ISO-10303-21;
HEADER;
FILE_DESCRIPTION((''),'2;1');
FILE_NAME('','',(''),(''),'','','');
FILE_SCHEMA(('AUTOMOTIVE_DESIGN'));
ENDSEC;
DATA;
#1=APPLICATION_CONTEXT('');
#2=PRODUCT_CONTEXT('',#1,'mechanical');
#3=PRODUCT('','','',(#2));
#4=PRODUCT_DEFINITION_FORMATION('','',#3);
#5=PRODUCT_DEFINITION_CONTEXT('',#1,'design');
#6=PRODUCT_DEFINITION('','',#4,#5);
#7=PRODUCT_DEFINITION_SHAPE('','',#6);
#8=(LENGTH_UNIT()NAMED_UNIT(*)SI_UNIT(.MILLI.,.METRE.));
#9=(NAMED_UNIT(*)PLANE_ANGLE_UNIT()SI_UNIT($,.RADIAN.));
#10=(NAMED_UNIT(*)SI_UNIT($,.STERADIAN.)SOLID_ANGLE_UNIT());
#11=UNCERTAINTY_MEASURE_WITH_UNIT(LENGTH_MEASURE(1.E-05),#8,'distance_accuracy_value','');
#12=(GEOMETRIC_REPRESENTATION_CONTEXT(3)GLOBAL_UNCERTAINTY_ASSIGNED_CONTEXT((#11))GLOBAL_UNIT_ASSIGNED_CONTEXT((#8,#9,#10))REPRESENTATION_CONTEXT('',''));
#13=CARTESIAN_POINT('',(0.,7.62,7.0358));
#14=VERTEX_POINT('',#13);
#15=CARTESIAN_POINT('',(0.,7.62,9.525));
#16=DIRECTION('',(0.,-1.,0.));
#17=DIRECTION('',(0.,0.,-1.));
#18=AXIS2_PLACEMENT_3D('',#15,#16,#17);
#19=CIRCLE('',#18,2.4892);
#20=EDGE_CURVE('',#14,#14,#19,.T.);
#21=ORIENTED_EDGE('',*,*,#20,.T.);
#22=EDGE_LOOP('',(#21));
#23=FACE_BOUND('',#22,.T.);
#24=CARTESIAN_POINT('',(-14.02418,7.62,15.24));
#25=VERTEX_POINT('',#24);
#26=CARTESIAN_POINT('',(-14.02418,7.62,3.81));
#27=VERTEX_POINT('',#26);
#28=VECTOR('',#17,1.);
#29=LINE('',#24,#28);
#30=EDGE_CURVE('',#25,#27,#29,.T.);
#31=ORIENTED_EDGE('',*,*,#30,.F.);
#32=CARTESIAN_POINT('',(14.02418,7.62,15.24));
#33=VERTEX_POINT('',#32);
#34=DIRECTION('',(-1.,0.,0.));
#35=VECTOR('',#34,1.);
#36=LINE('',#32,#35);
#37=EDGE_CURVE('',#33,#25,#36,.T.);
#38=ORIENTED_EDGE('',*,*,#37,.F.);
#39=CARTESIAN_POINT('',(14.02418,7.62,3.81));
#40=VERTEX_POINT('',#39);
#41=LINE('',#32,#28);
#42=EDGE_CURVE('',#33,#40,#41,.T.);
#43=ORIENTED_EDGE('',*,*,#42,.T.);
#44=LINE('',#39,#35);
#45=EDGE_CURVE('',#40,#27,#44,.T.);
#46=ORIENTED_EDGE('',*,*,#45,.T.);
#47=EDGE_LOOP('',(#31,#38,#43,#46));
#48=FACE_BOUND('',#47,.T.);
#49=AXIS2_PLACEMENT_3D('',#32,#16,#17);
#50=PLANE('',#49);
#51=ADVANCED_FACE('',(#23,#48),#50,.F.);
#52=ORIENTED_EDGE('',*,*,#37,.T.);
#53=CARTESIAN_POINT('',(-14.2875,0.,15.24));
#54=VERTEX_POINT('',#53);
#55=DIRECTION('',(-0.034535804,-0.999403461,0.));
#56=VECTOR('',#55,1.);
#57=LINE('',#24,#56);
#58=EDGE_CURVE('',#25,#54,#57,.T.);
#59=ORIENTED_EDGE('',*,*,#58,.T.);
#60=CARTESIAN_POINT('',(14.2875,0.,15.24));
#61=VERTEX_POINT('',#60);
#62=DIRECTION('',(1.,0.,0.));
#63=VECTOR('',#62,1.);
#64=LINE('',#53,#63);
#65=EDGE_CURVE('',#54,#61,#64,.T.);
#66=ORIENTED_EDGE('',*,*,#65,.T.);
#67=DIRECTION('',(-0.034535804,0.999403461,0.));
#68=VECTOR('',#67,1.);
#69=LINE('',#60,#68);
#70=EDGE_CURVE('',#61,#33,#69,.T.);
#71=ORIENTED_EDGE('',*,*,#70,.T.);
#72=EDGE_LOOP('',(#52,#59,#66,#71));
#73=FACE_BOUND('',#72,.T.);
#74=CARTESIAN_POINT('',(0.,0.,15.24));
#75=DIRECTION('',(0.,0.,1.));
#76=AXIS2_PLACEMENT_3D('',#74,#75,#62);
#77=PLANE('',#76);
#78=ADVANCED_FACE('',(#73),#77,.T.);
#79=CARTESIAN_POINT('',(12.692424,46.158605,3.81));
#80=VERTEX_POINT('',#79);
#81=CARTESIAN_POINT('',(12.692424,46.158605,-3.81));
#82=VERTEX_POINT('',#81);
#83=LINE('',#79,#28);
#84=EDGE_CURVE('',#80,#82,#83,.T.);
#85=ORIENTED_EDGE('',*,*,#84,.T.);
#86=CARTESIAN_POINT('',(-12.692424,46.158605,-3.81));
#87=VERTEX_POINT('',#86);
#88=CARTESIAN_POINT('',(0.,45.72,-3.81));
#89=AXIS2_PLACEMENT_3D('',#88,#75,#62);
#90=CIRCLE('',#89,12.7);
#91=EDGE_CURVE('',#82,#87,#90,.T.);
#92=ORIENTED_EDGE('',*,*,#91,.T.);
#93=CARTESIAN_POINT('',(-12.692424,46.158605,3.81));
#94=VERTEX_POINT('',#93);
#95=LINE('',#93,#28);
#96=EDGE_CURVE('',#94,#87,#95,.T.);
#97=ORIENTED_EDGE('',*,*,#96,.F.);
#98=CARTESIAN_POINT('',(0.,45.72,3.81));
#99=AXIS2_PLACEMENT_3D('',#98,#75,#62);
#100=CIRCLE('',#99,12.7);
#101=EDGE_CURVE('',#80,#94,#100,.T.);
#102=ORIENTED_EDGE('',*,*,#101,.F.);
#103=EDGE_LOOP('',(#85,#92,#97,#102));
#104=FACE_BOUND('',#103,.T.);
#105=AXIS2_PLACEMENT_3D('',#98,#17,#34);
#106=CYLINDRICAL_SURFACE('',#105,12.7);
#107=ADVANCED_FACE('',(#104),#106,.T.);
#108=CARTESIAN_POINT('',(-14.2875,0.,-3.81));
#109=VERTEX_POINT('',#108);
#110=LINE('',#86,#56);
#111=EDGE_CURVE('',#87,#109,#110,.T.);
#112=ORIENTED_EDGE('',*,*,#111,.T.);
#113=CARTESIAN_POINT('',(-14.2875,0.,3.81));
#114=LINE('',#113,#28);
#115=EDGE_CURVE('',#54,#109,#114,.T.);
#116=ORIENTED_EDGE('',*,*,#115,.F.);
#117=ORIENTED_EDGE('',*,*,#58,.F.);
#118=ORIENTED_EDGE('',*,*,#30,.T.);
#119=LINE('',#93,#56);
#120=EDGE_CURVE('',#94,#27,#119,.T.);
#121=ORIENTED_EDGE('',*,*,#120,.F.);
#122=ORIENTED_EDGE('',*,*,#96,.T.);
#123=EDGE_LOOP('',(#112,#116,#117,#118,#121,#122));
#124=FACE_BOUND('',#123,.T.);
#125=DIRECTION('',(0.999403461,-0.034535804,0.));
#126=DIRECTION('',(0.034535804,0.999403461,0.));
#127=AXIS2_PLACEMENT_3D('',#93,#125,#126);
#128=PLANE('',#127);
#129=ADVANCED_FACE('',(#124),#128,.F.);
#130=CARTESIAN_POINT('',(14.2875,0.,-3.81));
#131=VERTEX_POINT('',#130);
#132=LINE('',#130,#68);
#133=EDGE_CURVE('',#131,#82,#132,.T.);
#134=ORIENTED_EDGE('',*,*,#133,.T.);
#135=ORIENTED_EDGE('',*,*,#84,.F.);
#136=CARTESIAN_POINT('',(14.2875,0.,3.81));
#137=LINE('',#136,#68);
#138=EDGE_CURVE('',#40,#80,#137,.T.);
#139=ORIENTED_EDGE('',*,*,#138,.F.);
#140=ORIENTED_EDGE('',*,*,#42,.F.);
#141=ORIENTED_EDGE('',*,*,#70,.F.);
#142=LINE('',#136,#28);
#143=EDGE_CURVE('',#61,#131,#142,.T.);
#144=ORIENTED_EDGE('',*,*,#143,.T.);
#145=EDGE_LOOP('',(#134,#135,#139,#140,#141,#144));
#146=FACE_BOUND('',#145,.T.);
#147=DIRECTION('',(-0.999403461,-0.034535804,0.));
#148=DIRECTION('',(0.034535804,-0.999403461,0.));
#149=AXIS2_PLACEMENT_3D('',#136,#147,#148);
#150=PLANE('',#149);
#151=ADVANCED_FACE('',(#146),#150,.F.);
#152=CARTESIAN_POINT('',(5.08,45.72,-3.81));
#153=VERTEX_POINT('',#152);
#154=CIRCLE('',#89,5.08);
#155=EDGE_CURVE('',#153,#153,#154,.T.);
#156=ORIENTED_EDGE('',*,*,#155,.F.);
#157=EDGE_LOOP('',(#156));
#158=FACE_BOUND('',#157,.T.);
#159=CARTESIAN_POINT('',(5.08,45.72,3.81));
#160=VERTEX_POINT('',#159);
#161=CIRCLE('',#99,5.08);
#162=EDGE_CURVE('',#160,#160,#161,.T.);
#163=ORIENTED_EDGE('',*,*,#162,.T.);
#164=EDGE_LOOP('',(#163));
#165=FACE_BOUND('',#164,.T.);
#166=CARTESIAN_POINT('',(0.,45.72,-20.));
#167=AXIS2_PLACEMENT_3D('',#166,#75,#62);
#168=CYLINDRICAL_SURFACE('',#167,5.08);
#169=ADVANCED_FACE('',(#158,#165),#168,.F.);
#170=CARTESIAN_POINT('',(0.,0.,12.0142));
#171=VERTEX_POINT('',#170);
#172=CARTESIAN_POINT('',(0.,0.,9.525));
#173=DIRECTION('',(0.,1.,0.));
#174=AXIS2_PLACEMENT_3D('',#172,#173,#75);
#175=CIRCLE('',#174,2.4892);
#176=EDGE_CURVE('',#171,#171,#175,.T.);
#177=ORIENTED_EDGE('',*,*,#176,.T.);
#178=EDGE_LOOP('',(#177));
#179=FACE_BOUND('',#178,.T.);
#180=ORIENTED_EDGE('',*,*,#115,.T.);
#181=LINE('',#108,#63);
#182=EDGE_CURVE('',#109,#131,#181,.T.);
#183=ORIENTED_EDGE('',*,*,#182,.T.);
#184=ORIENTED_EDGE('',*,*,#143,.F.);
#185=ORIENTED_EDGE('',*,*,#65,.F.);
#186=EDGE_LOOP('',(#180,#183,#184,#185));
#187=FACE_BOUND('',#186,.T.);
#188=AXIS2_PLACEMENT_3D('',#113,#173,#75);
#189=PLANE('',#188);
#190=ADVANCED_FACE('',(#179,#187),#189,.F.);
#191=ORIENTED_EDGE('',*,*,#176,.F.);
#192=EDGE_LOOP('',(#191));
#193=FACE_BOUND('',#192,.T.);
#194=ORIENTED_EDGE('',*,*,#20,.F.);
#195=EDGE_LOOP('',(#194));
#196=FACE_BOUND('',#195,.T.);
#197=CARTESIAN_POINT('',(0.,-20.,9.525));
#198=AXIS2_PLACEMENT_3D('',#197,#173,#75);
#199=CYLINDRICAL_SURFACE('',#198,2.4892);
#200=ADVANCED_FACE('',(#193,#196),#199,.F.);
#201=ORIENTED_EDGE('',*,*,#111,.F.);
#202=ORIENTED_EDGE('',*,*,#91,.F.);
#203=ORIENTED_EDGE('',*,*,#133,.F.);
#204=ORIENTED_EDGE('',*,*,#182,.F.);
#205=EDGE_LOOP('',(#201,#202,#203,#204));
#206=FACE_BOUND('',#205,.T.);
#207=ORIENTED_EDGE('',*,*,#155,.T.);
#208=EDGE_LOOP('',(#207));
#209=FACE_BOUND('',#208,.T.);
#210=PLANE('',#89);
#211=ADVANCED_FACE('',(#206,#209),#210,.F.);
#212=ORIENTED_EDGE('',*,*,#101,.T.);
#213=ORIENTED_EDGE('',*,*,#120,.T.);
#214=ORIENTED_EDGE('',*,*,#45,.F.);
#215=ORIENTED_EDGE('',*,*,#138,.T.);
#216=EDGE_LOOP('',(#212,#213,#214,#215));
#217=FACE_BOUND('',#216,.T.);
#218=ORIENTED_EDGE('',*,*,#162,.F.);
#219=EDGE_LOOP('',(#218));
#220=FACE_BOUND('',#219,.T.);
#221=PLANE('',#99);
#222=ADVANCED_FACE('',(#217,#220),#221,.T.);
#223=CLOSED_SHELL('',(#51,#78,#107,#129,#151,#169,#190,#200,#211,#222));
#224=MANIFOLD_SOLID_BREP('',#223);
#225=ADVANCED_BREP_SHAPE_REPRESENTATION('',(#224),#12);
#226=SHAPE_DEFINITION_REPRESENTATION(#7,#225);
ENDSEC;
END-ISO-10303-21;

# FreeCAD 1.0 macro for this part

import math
import FreeCAD as App
import Part
import Sketcher
from FreeCAD import Vector
Q = App.Units.Quantity

doc = App.newDocument("Part")
body = doc.addObject("PartDesign::Body", "Body")

# Sketch on XY plane
sketch1 = body.newObject("Sketcher::SketchObject", "Sketch")
sketch1.AttachmentSupport = (doc.getObject("XY_Plane"), [""])
sketch1.MapMode = "FlatFace"
sketch1.addGeometry([
    Part.LineSegment(Vector(-14, 0, 0), Vector(14, 0, 0)),
    Part.LineSegment(Vector(14, 0, 0), Vector(13, 46, 0)),
    Part.ArcOfCircle(Part.Circle(Vector(0, 46, 0), Vector(0, 0, 1), 13), math.radians(2), math.radians(178)),
    Part.LineSegment(Vector(-13, 46, 0), Vector(-14, 0, 0)),
], False)
sketch1.addConstraint([
    Sketcher.Constraint("Coincident", 0, 2, 1, 1),
    Sketcher.Constraint("Tangent", 1, 2, 2, 1),
    Sketcher.Constraint("Tangent", 2, 2, 3, 1),
    Sketcher.Constraint("Coincident", 3, 2, 0, 1),
    Sketcher.Constraint("Horizontal", 0),
    Sketcher.Constraint("Symmetric", 0, 2, 3, 2, -1, 1),
    Sketcher.Constraint("PointOnObject", 2, 3, -2),
    Sketcher.Constraint("Radius", 2, Q("0.5 in")),
    Sketcher.Constraint("DistanceY", -1, 1, 2, 3, Q("1.8 in")),
    Sketcher.Constraint("DistanceX", 0, 1, 0, 2, Q("1.125 in")),
])
pad1 = body.newObject("PartDesign::Pad", "Pad")
pad1.Profile = sketch1
pad1.Length = Q("0.3 in")
pad1.Midplane = True

# Sketch on XY plane
sketch2 = body.newObject("Sketcher::SketchObject", "Sketch001")
sketch2.AttachmentSupport = (doc.getObject("XY_Plane"), [""])
sketch2.MapMode = "FlatFace"
sketch2.AttachmentOffset = App.Placement(Vector(0, 0, 0.15 * 25.4), App.Rotation())
sketch2.addGeometry([
    Part.LineSegment(Vector(-14.2875, 0, 0), Vector(14.2875, 0, 0)),
    Part.LineSegment(Vector(14.2875, 0, 0), Vector(14.02418, 7.62, 0)),
    Part.LineSegment(Vector(14.02418, 7.62, 0), Vector(-14.02418, 7.62, 0)),
    Part.LineSegment(Vector(-14.02418, 7.62, 0), Vector(-14.2875, 0, 0)),
], False)
sketch2.addConstraint([
    Sketcher.Constraint("Coincident", 0, 2, 1, 1),
    Sketcher.Constraint("Coincident", 1, 2, 2, 1),
    Sketcher.Constraint("Coincident", 2, 2, 3, 1),
    Sketcher.Constraint("Coincident", 3, 2, 0, 1),
    Sketcher.Constraint("Horizontal", 0),
    Sketcher.Constraint("Horizontal", 2),
    Sketcher.Constraint("Symmetric", 0, 2, 3, 2, -1, 1),
    Sketcher.Constraint("Equal", 1, 3),
    Sketcher.Constraint("DistanceY", -1, 1, 1, 2, Q("0.3 in")),
    Sketcher.Constraint("DistanceX", 0, 1, 0, 2, Q("1.125 in")),
    Sketcher.Constraint("DistanceX", 2, 2, 2, 1, Q("28.04836 mm")),
])
pad2 = body.newObject("PartDesign::Pad", "Pad001")
pad2.Profile = sketch2
pad2.Length = Q("0.45 in")

# Sketch on XY plane
sketch3 = body.newObject("Sketcher::SketchObject", "Sketch002")
sketch3.AttachmentSupport = (doc.getObject("XY_Plane"), [""])
sketch3.MapMode = "FlatFace"
sketch3.addGeometry(Part.Circle(Vector(0, 46, 0), Vector(0, 0, 1), 5), False)
sketch3.addConstraint([
    Sketcher.Constraint("PointOnObject", 0, 3, -2),
    Sketcher.Constraint("Diameter", 0, Q("0.4 in")),
    Sketcher.Constraint("DistanceY", -1, 1, 0, 3, Q("1.8 in")),
])
pocket1 = body.newObject("PartDesign::Pocket", "Pocket")
pocket1.Profile = sketch3
pocket1.Length = 40
pocket1.Midplane = True

# Sketch on XZ plane
sketch4 = body.newObject("Sketcher::SketchObject", "Sketch003")
sketch4.AttachmentSupport = (doc.getObject("XZ_Plane"), [""])
sketch4.MapMode = "FlatFace"
sketch4.addGeometry(Part.Circle(Vector(0, 9.5, 0), Vector(0, 0, 1), 2.5), False)
sketch4.addConstraint([
    Sketcher.Constraint("PointOnObject", 0, 3, -2),
    Sketcher.Constraint("Diameter", 0, Q("0.196 in")),
    Sketcher.Constraint("DistanceY", -1, 1, 0, 3, Q("0.375 in")),
])
pocket2 = body.newObject("PartDesign::Pocket", "Pocket001")
pocket2.Profile = sketch4
pocket2.Length = 40
pocket2.Midplane = True

doc.recompute()
